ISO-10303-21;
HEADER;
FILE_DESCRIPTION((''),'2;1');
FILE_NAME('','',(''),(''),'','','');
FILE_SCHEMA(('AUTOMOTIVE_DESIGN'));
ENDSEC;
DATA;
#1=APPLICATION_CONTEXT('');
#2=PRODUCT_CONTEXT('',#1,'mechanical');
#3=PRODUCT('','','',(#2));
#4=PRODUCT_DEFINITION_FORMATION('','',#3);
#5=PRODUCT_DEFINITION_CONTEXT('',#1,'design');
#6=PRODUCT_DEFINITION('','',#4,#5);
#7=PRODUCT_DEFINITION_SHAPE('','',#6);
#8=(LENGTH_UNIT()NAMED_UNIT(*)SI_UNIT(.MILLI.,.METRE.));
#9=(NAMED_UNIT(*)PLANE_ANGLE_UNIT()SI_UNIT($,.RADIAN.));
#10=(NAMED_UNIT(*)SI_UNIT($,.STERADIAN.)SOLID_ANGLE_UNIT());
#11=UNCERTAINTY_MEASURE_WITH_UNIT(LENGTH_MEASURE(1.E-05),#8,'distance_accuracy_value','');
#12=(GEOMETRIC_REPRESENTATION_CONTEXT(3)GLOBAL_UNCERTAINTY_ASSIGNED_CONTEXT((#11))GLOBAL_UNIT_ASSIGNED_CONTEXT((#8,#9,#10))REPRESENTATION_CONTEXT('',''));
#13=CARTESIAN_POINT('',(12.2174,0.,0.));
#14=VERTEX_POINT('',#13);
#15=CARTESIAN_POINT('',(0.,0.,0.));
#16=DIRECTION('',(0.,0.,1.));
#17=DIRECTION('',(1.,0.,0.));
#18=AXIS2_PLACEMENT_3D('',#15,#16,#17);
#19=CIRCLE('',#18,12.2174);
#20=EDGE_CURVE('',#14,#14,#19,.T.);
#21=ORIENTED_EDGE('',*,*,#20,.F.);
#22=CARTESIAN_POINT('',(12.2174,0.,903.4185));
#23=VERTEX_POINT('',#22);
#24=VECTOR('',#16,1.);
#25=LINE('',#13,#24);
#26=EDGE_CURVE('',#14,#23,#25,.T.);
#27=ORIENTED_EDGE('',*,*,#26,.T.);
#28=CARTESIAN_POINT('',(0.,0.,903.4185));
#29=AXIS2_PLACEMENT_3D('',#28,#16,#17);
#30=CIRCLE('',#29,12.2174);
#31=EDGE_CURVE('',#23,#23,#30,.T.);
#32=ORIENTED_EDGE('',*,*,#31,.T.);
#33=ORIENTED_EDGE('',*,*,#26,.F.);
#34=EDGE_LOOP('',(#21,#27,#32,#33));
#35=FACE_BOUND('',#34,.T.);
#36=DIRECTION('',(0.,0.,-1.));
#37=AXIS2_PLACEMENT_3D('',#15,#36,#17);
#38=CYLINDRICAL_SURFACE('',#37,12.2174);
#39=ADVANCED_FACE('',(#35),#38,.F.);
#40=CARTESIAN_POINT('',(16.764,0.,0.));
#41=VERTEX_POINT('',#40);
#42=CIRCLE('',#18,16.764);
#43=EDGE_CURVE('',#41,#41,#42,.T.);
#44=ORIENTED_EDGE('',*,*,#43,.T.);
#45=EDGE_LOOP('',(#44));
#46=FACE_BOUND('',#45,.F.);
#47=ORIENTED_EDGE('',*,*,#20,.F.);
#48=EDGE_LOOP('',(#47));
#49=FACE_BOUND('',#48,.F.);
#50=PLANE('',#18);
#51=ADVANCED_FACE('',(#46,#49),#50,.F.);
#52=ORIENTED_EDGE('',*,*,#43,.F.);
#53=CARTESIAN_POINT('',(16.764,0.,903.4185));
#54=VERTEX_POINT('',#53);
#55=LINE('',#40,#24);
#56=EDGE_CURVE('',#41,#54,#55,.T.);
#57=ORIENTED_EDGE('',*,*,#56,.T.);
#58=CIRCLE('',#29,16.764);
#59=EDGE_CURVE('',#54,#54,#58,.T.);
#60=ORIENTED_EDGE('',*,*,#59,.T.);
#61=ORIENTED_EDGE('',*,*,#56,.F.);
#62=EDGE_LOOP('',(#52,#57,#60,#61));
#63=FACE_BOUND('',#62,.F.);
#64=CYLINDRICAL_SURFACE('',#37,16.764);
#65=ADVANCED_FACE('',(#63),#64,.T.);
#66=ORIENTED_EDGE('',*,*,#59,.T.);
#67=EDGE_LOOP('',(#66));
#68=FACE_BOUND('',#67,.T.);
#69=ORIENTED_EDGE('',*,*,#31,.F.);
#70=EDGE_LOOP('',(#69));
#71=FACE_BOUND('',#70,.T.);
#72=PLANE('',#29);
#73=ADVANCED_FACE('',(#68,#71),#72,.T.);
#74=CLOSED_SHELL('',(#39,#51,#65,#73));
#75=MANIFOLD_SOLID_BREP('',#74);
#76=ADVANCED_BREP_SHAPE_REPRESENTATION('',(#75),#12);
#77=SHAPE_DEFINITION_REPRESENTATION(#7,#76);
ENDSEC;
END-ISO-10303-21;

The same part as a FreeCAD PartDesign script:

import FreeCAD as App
import Part
import Sketcher
from FreeCAD import Vector
Q = App.Units.Quantity

doc = App.newDocument("Part")
params = doc.addObject("Spreadsheet::Sheet", "Params")
for row, (alias, value) in enumerate([
    ("sketch1_diameter", "1.32 in"),
    ("sketch1_diameter2", "0.962 in"),
    ("pad1_length", "903.4185 mm"),
], start=1):
    params.set(f"A{row}", alias)
    params.set(f"B{row}", "=" + value)
    params.setAlias(f"B{row}", alias)

body = doc.addObject("PartDesign::Body", "Body")

# Sketch on XY plane
sketch1 = doc.addObject("Sketcher::SketchObject", "Sketch")
body.addObject(sketch1)
sketch1.AttachmentSupport = (doc.XY_Plane, [""])
sketch1.MapMode = "FlatFace"
sketch1.addGeometry([
    Part.Circle(Vector(0, 0, 0), Vector(0, 0, 1), 17),
    Part.Circle(Vector(0, 0, 0), Vector(0, 0, 1), 12),
], False)
sketch1.addConstraint([
    Sketcher.Constraint("Coincident", 0, 3, -1, 1),
    Sketcher.Constraint("Coincident", 1, 3, -1, 1),
    Sketcher.Constraint("Diameter", 0, Q("1.32 in")),
    Sketcher.Constraint("Diameter", 1, Q("0.962 in")),
])
sketch1.setExpression("Constraints[2]", "Params.sketch1_diameter")
sketch1.setExpression("Constraints[3]", "Params.sketch1_diameter2")
pad1 = doc.addObject("PartDesign::Pad", "Pad")
body.addObject(pad1)
pad1.Profile = sketch1
pad1.setExpression("Length", "Params.pad1_length")

doc.recompute()
